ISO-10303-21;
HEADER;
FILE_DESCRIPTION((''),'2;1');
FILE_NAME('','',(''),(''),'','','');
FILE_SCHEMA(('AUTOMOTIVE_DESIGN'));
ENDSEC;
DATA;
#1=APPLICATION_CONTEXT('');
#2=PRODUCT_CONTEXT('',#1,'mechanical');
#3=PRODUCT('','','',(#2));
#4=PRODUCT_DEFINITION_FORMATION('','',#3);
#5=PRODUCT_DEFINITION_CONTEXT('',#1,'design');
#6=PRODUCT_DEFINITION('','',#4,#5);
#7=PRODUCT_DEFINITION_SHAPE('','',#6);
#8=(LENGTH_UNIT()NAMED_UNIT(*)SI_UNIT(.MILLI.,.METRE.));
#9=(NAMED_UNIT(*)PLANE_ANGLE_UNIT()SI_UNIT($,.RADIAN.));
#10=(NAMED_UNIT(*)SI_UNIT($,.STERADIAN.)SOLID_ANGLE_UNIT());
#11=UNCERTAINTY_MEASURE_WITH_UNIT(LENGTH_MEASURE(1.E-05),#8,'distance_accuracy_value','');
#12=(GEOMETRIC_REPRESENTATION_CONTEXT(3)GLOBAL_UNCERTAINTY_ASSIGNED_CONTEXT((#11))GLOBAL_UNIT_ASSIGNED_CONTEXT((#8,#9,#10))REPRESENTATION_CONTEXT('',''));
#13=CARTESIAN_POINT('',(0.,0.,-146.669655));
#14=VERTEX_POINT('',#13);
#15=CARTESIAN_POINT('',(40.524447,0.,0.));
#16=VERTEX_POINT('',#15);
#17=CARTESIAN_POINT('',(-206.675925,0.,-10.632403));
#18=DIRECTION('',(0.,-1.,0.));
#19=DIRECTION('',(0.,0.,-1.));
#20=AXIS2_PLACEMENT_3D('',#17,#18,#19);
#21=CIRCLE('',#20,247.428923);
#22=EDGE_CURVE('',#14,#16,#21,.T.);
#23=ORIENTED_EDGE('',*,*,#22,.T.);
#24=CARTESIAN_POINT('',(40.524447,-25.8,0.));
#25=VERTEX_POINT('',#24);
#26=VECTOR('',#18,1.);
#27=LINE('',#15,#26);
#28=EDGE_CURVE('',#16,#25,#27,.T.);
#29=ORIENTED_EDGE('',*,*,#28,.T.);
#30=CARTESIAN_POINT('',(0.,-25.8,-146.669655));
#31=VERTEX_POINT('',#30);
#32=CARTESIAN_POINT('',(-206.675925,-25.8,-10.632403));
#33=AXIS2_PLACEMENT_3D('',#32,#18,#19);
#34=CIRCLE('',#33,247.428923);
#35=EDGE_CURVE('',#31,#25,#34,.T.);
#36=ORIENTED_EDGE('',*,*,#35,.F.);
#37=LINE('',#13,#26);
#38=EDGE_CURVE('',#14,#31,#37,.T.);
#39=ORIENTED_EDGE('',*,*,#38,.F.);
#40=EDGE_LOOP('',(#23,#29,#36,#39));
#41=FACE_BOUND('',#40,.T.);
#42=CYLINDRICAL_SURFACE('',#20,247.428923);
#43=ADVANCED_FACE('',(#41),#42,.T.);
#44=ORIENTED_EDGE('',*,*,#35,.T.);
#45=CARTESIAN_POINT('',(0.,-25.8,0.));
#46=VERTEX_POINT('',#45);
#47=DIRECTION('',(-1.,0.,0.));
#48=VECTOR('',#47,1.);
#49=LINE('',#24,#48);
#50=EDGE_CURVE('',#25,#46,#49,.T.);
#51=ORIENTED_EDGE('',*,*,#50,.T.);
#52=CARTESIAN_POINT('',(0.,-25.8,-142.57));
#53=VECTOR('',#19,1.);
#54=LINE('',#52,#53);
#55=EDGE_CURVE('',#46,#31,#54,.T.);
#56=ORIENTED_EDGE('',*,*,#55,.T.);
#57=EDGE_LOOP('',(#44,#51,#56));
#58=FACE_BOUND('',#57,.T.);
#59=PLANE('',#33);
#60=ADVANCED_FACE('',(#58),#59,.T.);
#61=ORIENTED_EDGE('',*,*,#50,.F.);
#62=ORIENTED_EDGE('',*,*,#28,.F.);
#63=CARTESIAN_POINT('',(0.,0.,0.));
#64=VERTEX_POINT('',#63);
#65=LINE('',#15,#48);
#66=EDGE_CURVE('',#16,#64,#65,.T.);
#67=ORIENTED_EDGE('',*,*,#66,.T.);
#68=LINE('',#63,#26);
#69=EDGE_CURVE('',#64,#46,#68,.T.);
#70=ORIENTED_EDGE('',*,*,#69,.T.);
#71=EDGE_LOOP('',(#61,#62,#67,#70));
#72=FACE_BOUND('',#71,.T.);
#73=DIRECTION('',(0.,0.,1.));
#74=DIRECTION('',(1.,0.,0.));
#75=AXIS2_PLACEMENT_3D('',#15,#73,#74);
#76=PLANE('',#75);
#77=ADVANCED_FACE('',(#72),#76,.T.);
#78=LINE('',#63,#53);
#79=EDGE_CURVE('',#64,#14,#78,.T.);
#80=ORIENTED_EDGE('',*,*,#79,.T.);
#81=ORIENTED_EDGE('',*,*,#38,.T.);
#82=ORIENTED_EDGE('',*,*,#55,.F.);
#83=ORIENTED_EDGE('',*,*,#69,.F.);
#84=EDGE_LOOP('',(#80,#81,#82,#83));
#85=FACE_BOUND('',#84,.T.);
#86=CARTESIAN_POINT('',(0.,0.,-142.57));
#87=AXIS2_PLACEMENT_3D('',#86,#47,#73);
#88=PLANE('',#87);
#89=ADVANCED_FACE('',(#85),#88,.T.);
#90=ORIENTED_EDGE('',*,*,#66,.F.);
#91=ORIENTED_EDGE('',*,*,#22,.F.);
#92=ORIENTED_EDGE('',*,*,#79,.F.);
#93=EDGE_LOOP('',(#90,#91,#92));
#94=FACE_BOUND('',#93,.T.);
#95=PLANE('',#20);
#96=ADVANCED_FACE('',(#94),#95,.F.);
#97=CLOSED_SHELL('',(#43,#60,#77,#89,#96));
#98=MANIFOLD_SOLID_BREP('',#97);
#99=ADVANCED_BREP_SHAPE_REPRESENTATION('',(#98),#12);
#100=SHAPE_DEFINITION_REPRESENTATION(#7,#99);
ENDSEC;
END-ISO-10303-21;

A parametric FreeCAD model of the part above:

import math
import FreeCAD as App
import Part
import Sketcher
from FreeCAD import Vector

doc = App.newDocument("Part")
body = doc.addObject("PartDesign::Body", "Body")

sketch1 = doc.addObject("Sketcher::SketchObject", "Sketch")
body.addObject(sketch1)
sketch1.AttachmentSupport = (doc.XZ_Plane, [""])
sketch1.MapMode = "FlatFace"
sketch1.AttachmentOffset = App.Placement(Vector(0, 0, 25.8), App.Rotation())
sketch1.addGeometry([
    Part.ArcOfCircle(Part.Circle(Vector(-207, -11, 0), Vector(0, 0, 1), 247), math.radians(-33), math.radians(-13)),
    Part.ArcOfCircle(Part.Circle(Vector(-207, -11, 0), Vector(0, 0, 1), 247), math.radians(-13.17), math.radians(2.46)),
    Part.LineSegment(Vector(41, 0, 0), Vector(0, 0, 0)),
    Part.LineSegment(Vector(0, 0, 0), Vector(0, -147, 0)),
], False)
sketch1.addConstraint([
    Sketcher.Constraint("Tangent", 0, 2, 1, 1),
    Sketcher.Constraint("Coincident", 1, 2, 2, 1),
    Sketcher.Constraint("Coincident", 2, 2, 3, 1),
    Sketcher.Constraint("Coincident", 3, 2, 0, 1),
    Sketcher.Constraint("Horizontal", 2),
    Sketcher.Constraint("Vertical", 3),
    Sketcher.Constraint("Coincident", 2, 2, -1, 1),
    Sketcher.Constraint("Equal", 0, 1),
    Sketcher.Constraint("Radius", 0, 247.428923),
    Sketcher.Constraint("DistanceX", 2, 2, 2, 1, 40.524447),
    Sketcher.Constraint("DistanceY", 3, 2, 3, 1, 146.669655),
    Sketcher.Constraint("DistanceX", -1, 1, 0, 2, 34.241879),
])
pad1 = doc.addObject("PartDesign::Pad", "Pad")
body.addObject(pad1)
pad1.Profile = sketch1
pad1.Length = 25.8
pad1.Reversed = True

doc.recompute()
